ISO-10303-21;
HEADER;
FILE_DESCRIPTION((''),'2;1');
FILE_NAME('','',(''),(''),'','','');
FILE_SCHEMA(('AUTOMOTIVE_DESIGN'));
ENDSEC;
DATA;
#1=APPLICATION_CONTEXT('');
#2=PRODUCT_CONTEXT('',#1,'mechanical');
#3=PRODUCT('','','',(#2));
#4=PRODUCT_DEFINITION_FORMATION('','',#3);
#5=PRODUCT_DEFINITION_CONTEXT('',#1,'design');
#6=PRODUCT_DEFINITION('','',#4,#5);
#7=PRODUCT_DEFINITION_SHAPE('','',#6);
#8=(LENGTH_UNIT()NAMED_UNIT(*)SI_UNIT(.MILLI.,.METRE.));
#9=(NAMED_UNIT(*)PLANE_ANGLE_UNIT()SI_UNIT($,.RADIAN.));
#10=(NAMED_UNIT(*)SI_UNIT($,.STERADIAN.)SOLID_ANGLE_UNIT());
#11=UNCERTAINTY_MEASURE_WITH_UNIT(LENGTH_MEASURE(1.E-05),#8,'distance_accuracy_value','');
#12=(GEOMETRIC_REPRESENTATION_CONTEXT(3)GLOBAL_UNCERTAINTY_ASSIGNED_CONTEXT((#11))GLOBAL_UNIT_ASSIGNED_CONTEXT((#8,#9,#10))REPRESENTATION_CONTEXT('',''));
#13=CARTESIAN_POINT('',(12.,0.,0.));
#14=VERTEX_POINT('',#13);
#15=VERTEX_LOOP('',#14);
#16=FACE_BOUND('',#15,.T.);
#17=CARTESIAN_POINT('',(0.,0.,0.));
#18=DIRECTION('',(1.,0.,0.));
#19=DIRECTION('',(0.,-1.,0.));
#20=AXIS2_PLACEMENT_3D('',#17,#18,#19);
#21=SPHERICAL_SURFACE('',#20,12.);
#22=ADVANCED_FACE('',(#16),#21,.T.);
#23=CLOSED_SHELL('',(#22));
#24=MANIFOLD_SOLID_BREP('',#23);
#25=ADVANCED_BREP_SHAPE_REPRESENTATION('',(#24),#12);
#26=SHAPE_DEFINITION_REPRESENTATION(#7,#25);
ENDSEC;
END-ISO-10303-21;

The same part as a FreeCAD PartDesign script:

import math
import FreeCAD as App
import Part
import Sketcher

V = App.Vector

doc = App.newDocument("Part")
body = doc.addObject("PartDesign::Body", "Body")

# Sketch on XY plane
sketch1 = body.newObject("Sketcher::SketchObject", "Sketch")
sketch1.AttachmentSupport = (doc.getObject("XY_Plane"), [""])
sketch1.MapMode = "FlatFace"
sketch1.addGeometry([
    Part.LineSegment(V(12, 0, 0), V(-12, 0, 0)),
    Part.ArcOfCircle(Part.Circle(V(0, 0, 0), V(0, 0, 1), 12), math.radians(180), math.radians(360)),
], False)
sketch1.addConstraint([
    Sketcher.Constraint("Coincident", 0, 1, 1, 2),
    Sketcher.Constraint("Coincident", 1, 1, 0, 2),
    Sketcher.Constraint("Horizontal", 0),
    Sketcher.Constraint("Coincident", 1, 3, -1, 1),
    Sketcher.Constraint("PointOnObject", 0, 1, -1),
    Sketcher.Constraint("Radius", 1, 12.0),
])
revolution = body.newObject("PartDesign::Revolution", "Revolution")
revolution.Profile = sketch1
revolution.ReferenceAxis = (sketch1, ["H_Axis"])
revolution.Angle = 360

doc.recompute()
